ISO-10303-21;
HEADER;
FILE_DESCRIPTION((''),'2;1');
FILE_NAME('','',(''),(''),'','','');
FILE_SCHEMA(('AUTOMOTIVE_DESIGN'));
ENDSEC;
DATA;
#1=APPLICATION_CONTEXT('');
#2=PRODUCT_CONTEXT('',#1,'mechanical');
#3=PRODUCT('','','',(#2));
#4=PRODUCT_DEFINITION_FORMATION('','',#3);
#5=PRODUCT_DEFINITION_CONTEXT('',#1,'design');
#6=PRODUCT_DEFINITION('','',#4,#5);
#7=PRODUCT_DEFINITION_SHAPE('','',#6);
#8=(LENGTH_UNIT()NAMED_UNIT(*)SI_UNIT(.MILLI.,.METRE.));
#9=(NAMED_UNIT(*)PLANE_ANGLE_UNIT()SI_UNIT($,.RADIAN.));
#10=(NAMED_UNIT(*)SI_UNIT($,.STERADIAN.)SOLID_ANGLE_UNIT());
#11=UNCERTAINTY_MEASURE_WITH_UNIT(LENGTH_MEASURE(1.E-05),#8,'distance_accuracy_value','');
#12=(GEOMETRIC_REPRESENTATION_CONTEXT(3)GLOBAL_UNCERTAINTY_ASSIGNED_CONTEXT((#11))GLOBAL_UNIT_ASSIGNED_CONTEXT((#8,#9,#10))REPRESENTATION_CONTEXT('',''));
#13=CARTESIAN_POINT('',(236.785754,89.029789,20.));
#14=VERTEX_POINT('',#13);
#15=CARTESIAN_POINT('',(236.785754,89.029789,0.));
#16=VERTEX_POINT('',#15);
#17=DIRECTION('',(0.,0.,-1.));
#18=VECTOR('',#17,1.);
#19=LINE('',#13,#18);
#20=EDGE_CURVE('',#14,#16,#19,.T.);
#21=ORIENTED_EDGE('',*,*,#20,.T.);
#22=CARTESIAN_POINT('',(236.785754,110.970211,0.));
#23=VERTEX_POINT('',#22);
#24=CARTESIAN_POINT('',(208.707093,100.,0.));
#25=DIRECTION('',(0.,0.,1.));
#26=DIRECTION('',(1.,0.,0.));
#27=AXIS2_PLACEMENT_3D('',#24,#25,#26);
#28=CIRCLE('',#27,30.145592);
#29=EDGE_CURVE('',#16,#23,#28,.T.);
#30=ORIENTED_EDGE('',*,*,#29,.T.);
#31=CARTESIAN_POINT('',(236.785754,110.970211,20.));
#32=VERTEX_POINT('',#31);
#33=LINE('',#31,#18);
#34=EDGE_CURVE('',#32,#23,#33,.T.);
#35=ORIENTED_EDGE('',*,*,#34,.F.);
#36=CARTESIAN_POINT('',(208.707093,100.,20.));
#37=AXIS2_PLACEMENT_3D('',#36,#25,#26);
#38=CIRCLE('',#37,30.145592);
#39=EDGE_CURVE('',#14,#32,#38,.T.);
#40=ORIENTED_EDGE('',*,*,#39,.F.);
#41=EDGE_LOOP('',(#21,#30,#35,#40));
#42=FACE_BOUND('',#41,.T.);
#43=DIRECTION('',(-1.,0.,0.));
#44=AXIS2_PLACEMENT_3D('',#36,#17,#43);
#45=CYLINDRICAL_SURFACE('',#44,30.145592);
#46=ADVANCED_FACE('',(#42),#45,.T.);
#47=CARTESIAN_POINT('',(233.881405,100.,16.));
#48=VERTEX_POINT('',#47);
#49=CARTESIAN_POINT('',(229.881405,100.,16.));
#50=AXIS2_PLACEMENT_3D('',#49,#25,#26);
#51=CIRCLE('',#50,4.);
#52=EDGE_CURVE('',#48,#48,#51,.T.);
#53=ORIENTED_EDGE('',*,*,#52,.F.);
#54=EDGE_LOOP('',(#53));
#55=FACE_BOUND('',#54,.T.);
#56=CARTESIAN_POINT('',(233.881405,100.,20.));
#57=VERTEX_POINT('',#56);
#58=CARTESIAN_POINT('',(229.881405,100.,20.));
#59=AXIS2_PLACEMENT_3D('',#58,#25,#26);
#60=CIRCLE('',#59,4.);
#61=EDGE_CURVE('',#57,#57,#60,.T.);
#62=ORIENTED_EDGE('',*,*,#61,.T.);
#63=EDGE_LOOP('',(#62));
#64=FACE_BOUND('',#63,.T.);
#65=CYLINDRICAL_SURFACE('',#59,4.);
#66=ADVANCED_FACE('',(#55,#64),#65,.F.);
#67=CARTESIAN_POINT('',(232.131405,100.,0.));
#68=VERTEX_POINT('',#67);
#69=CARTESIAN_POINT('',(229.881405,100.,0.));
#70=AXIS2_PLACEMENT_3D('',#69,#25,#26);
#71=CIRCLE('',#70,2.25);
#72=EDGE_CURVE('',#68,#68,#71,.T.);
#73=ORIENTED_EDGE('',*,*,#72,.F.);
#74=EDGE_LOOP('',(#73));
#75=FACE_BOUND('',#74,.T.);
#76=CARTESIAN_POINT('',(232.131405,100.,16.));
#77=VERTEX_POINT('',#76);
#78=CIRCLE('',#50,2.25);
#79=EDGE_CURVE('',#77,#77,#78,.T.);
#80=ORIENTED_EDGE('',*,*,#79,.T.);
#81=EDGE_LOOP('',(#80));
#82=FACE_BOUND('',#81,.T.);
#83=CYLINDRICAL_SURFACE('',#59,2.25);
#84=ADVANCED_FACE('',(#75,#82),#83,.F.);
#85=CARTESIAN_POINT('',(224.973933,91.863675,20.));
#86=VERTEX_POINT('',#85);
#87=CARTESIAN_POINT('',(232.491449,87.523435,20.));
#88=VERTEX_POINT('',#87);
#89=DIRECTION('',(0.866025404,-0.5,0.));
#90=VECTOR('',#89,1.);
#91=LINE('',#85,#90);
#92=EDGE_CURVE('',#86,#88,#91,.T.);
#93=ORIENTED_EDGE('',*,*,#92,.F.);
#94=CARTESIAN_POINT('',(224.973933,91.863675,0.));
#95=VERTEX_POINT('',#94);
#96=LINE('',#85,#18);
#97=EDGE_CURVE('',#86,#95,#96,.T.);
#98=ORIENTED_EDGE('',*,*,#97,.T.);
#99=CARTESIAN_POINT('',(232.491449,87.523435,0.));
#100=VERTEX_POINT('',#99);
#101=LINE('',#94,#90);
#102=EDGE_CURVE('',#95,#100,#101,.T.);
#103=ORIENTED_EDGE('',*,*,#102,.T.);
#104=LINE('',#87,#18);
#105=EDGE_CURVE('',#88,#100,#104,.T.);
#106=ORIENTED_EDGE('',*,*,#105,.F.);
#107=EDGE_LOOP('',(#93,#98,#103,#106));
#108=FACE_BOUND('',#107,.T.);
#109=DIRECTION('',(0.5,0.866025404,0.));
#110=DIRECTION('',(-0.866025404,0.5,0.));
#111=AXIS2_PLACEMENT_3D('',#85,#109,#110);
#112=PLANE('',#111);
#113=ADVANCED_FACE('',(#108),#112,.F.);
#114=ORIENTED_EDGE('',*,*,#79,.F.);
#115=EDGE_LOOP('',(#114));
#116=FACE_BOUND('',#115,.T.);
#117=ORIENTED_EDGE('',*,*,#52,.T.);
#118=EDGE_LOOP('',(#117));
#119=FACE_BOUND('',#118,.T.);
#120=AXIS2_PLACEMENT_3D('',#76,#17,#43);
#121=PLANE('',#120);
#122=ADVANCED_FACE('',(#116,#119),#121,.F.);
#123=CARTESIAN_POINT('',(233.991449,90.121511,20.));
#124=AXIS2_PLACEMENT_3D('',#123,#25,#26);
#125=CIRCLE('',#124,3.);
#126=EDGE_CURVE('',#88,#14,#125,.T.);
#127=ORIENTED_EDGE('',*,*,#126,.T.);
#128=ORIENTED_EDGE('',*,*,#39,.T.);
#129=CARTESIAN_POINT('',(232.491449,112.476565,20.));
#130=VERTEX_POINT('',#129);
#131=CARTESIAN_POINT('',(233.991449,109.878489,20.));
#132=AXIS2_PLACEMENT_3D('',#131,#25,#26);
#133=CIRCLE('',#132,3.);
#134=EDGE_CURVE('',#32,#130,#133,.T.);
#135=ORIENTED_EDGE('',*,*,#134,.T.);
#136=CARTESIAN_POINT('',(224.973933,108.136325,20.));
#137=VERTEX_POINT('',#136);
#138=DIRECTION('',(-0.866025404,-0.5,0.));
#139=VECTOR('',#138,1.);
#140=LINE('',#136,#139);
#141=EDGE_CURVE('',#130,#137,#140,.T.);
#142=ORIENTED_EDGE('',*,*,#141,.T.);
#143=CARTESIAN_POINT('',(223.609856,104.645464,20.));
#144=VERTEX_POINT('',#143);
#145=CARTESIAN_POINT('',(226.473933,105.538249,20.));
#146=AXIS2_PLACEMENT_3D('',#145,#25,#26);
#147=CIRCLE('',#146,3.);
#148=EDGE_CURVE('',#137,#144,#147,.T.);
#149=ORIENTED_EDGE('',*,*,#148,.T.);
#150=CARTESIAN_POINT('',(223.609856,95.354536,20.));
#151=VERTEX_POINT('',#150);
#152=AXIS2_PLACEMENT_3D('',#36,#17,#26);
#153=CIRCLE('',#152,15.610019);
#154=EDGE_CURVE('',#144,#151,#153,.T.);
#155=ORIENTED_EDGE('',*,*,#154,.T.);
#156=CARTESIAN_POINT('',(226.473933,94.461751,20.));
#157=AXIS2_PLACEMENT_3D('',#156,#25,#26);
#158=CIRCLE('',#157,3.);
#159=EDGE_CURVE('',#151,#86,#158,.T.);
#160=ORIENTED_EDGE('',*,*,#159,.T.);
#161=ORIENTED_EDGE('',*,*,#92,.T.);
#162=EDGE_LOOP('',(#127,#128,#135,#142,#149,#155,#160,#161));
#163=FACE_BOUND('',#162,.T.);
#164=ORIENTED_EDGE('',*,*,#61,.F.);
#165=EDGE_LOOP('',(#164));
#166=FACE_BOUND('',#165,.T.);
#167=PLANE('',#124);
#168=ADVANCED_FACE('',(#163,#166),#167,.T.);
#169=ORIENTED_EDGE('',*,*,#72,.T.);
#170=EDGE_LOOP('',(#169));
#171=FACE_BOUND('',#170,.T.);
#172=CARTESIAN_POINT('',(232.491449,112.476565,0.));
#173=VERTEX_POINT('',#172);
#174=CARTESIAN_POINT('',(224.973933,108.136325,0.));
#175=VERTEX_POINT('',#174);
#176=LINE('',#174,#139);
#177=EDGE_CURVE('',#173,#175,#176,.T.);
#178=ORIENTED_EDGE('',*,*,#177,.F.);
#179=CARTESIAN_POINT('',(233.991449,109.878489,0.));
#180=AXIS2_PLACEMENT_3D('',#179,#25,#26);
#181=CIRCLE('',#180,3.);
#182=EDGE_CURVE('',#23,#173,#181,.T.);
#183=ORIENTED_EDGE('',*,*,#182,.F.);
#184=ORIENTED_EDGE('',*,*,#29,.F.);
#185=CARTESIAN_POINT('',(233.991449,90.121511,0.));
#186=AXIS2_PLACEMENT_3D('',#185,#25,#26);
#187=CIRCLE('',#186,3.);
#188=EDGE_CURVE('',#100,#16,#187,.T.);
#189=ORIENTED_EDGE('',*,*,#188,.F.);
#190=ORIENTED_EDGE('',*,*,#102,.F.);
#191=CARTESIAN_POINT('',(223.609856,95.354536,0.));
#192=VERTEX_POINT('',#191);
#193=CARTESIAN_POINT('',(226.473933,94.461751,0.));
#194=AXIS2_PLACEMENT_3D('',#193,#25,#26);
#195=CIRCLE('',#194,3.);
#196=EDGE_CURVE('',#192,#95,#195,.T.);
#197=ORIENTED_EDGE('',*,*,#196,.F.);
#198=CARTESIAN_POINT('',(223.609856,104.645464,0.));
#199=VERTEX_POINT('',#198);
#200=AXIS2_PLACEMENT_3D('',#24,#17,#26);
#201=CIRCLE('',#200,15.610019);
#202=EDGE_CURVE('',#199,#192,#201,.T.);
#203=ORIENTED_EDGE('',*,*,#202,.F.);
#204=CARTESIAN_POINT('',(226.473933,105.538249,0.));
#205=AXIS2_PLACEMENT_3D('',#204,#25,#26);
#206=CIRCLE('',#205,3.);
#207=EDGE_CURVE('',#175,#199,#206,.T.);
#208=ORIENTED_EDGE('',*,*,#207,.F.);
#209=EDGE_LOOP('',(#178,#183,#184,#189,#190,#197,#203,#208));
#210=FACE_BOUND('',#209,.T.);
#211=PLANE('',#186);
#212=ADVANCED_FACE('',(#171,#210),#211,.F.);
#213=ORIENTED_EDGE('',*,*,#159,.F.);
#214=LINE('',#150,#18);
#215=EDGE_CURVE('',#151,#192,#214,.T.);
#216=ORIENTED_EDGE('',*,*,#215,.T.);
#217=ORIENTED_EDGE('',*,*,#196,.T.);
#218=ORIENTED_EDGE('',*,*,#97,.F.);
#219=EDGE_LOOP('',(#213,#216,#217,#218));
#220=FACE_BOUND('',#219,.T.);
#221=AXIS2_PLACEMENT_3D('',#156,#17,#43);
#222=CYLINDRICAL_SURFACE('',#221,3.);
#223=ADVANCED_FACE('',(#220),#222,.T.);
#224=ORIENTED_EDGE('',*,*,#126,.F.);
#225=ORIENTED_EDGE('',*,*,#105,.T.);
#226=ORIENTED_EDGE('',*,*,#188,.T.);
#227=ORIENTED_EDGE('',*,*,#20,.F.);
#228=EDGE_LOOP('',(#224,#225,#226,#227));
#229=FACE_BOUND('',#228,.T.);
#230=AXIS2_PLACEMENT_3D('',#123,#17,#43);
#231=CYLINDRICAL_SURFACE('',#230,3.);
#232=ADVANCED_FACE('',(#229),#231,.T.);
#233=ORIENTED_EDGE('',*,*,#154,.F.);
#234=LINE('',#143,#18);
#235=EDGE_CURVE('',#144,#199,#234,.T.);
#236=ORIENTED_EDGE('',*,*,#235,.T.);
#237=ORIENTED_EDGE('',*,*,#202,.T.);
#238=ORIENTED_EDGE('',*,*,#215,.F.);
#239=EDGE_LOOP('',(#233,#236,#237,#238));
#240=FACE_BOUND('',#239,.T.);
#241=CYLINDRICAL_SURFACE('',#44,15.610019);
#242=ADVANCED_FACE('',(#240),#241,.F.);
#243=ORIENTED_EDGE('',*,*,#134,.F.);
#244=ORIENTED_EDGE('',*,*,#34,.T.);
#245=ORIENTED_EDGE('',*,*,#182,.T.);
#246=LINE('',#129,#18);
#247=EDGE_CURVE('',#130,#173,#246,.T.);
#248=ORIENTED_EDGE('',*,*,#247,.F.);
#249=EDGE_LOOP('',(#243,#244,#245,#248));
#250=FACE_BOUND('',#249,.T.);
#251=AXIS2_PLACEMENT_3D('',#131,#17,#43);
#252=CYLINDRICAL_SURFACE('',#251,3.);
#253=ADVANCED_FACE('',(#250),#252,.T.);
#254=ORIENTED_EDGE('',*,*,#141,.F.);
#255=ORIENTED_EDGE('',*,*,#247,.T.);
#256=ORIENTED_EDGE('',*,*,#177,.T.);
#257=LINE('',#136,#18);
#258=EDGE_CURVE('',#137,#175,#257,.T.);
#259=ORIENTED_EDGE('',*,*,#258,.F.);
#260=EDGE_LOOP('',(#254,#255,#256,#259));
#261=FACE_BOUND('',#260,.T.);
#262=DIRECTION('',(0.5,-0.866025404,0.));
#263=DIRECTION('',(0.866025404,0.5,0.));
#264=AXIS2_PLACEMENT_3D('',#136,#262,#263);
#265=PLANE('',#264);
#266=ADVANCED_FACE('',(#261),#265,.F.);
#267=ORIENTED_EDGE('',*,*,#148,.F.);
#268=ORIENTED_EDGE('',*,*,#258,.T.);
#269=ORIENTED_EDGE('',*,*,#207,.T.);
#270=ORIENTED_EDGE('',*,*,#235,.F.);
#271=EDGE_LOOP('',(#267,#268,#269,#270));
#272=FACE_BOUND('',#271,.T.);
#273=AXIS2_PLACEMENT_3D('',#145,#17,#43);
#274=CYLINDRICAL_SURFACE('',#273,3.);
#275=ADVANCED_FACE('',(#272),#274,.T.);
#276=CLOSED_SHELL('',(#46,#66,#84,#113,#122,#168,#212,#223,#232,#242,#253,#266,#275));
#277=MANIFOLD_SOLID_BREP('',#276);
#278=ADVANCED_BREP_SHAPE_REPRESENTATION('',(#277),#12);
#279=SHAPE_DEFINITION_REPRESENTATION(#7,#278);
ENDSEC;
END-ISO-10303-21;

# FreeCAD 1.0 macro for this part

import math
import FreeCAD as App
import Part
import Sketcher
from FreeCAD import Vector
Q = App.Units.Quantity

doc = App.newDocument("Part")
body = doc.addObject("PartDesign::Body", "Body")

# Sketch on XY plane
sketch1 = doc.addObject("Sketcher::SketchObject", "Sketch")
body.addObject(sketch1)
sketch1.AttachmentSupport = (doc.XY_Plane, [""])
sketch1.MapMode = "FlatFace"
sketch1.addGeometry(Part.LineSegment(Vector(232.491449, 112.476565, 0), Vector(224.973933, 108.136325, 0)), False)
sketch1.addGeometry(Part.ArcOfCircle(Part.Circle(Vector(226.473933, 105.538249, 0), Vector(0, 0, 1), 3), math.radians(120), math.radians(197.313211)), False)
sketch1.addGeometry(Part.ArcOfCircle(Part.Circle(Vector(208.707093, 100, 0), Vector(0, 0, 1), 15.610019), math.radians(-17.313211), math.radians(17.313211)), False)
sketch1.addGeometry(Part.ArcOfCircle(Part.Circle(Vector(226.473933, 94.461751, 0), Vector(0, 0, 1), 3), math.radians(162.686789), math.radians(240)), False)
sketch1.addGeometry(Part.LineSegment(Vector(224.973933, 91.863675, 0), Vector(232.491449, 87.523435, 0)), False)
sketch1.addGeometry(Part.ArcOfCircle(Part.Circle(Vector(233.991449, 90.121511, 0), Vector(0, 0, 1), 3), math.radians(-120), math.radians(-21.340373)), False)
sketch1.addGeometry(Part.ArcOfCircle(Part.Circle(Vector(208.707093, 100, 0), Vector(0, 0, 1), 30.145592), math.radians(-21.340373), math.radians(21.340373)), False)
sketch1.addGeometry(Part.ArcOfCircle(Part.Circle(Vector(233.991449, 109.878489, 0), Vector(0, 0, 1), 3), math.radians(21.340373), math.radians(120)), False)
sketch1.addConstraint(Sketcher.Constraint("Tangent", 0, 2, 1, 1))
sketch1.addConstraint(Sketcher.Constraint("Tangent", 1, 2, 2, 2))
sketch1.addConstraint(Sketcher.Constraint("Tangent", 2, 1, 3, 1))
sketch1.addConstraint(Sketcher.Constraint("Tangent", 3, 2, 4, 1))
sketch1.addConstraint(Sketcher.Constraint("Tangent", 4, 2, 5, 1))
sketch1.addConstraint(Sketcher.Constraint("Tangent", 5, 2, 6, 1))
sketch1.addConstraint(Sketcher.Constraint("Tangent", 6, 2, 7, 1))
sketch1.addConstraint(Sketcher.Constraint("Tangent", 7, 2, 0, 1))
sketch1.addConstraint(Sketcher.Constraint("Coincident", 6, 3, 2, 3))
sketch1.addConstraint(Sketcher.Constraint("Equal", 1, 3))
sketch1.addConstraint(Sketcher.Constraint("Equal", 3, 5))
sketch1.addConstraint(Sketcher.Constraint("Equal", 5, 7))
sketch1.addConstraint(Sketcher.Constraint("Vertical", 1, 3, 3, 3))
sketch1.addConstraint(Sketcher.Constraint("Vertical", 5, 3, 7, 3))
sketch1.addConstraint(Sketcher.Constraint("Radius", 1, Q("3 mm")))
sketch1.addConstraint(Sketcher.Constraint("Angle", 0, Q("-150 deg")))
sketch1.addConstraint(Sketcher.Constraint("DistanceY", -1, 1, 2, 3, Q("100 mm")))
sketch1.addConstraint(Sketcher.Constraint("Radius", 2, Q("15.610019 mm")))
sketch1.addConstraint(Sketcher.Constraint("Radius", 6, Q("30.145592 mm")))
sketch1.addConstraint(Sketcher.Constraint("DistanceY", 4, 2, 2, 1, Q("7.831101 mm")))
sketch1.addConstraint(Sketcher.Constraint("DistanceX", -1, 1, 5, 3, Q("233.991449 mm")))
pad1 = doc.addObject("PartDesign::Pad", "Pad")
body.addObject(pad1)
pad1.Profile = sketch1
pad1.Length = 20

# Sketch on XY plane
sketch2 = doc.addObject("Sketcher::SketchObject", "Sketch001")
body.addObject(sketch2)
sketch2.AttachmentSupport = (doc.XY_Plane, [""])
sketch2.MapMode = "FlatFace"
sketch2.AttachmentOffset = App.Placement(Vector(0, 0, 20), App.Rotation())
sketch2.addGeometry(Part.Circle(Vector(229.881405, 100, 0), Vector(0, 0, 1), 2.25), False)
sketch2.addConstraint(Sketcher.Constraint("Diameter", 0, Q("4.5 mm")))
sketch2.addConstraint(Sketcher.Constraint("DistanceY", -1, 1, 0, 3, Q("100 mm")))
sketch2.addConstraint(Sketcher.Constraint("DistanceX", -1, 1, 0, 3, Q("229.881405 mm")))
doc.recompute()
hole = doc.addObject("PartDesign::Hole", "Hole")
body.addObject(hole)
hole.Profile = sketch2
hole.ThreadType = "None"
hole.Diameter = 4.5
hole.DepthType = "ThroughAll"
hole.HoleCutType = "Counterbore"
hole.HoleCutDiameter = 8
hole.HoleCutDepth = 4

doc.recompute()
